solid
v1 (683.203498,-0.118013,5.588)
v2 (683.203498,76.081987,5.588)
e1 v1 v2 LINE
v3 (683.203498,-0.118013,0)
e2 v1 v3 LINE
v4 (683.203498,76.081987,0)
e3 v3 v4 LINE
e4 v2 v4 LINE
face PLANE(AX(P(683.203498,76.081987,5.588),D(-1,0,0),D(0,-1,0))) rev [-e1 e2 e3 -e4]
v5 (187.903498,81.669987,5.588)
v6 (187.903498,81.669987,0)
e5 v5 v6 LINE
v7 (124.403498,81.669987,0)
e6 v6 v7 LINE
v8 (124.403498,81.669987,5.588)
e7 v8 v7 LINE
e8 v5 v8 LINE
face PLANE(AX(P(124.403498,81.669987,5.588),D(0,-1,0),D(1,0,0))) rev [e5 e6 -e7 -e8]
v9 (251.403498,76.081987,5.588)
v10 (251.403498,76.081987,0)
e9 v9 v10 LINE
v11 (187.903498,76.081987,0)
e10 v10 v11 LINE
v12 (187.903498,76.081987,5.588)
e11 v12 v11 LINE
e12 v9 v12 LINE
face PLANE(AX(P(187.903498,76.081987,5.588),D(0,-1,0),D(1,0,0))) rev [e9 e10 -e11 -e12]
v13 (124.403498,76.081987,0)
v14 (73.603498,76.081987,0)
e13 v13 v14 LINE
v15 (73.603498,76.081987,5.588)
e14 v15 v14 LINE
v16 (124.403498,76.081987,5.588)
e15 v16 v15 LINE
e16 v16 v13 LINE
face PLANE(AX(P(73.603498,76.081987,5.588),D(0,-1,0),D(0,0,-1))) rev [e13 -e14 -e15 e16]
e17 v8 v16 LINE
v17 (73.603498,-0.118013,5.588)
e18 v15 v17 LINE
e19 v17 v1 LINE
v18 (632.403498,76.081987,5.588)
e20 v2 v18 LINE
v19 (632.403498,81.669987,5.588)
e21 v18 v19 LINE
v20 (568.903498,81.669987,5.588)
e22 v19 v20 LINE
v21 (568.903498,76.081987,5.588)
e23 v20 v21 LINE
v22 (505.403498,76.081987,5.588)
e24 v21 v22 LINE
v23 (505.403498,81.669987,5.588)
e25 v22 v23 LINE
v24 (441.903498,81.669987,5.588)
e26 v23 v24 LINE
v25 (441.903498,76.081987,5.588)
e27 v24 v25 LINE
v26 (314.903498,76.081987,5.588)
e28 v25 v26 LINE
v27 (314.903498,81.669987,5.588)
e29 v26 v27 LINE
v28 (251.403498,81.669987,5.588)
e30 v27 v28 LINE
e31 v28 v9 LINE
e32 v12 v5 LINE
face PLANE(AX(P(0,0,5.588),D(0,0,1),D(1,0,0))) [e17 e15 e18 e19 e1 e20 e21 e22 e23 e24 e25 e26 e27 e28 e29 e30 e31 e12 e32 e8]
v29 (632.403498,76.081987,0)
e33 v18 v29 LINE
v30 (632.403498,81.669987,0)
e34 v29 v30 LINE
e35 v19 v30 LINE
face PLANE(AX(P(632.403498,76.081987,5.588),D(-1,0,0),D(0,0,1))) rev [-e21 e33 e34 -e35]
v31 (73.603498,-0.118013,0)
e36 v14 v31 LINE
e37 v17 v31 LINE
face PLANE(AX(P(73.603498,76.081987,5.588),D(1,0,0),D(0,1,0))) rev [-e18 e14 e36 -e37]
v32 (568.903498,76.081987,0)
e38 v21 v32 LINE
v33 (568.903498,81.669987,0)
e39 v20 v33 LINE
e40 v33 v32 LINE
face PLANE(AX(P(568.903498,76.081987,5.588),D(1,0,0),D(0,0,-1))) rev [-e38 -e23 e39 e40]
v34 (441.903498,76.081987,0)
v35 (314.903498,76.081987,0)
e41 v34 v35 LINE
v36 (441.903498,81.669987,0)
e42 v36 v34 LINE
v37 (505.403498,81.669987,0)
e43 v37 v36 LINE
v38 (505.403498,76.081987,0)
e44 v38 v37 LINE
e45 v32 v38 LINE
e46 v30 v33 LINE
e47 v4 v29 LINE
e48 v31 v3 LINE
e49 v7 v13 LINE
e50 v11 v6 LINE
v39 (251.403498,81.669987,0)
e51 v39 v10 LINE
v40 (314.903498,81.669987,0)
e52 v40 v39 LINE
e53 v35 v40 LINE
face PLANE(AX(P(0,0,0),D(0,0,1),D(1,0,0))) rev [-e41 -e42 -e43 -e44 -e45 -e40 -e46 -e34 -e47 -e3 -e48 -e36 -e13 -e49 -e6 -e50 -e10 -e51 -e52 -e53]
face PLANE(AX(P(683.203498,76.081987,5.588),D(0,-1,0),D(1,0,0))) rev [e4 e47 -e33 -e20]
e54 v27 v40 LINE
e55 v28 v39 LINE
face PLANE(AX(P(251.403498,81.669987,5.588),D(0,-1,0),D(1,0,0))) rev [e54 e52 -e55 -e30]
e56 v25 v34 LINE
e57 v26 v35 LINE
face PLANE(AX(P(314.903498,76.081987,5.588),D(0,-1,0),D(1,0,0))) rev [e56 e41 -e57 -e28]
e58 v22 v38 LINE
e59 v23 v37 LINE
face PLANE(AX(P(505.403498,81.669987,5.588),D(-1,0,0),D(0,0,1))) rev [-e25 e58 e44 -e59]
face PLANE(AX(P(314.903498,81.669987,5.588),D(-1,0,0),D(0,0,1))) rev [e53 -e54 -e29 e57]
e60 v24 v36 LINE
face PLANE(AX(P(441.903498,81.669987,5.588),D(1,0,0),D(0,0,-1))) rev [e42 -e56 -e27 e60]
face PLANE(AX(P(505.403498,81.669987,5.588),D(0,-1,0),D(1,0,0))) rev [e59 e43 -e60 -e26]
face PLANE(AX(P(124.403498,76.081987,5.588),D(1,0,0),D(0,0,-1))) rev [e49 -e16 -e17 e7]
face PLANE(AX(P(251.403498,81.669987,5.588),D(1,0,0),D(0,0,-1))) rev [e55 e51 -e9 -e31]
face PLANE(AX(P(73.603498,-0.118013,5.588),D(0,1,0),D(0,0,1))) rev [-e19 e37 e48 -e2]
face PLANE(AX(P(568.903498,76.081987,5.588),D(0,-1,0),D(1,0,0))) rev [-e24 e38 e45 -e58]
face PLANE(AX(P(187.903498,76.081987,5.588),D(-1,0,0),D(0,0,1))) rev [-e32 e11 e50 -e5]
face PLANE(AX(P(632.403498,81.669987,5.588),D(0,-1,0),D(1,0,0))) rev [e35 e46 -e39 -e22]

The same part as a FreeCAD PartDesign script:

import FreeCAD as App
import Part
import Sketcher
Q = App.Units.Quantity

doc = App.newDocument("Part")
body = doc.addObject("PartDesign::Body", "Body")

sketch1 = body.newObject("Sketcher::SketchObject", "Sketch")
sketch1.AttachmentSupport = (doc.getObject("XY_Plane"), [""])
sketch1.MapMode = "FlatFace"
sketch1.addGeometry(Part.LineSegment(App.Vector(124, 76, 0), App.Vector(74, 76, 0)), False)
sketch1.addGeometry(Part.LineSegment(App.Vector(74, 76, 0), App.Vector(74, 0, 0)), False)
sketch1.addGeometry(Part.LineSegment(App.Vector(74, 0, 0), App.Vector(683, 0, 0)), False)
sketch1.addGeometry(Part.LineSegment(App.Vector(683, 0, 0), App.Vector(683, 76, 0)), False)
sketch1.addGeometry(Part.LineSegment(App.Vector(683, 76, 0), App.Vector(632, 76, 0)), False)
sketch1.addGeometry(Part.LineSegment(App.Vector(632, 76, 0), App.Vector(632, 82, 0)), False)
sketch1.addGeometry(Part.LineSegment(App.Vector(632, 82, 0), App.Vector(569, 82, 0)), False)
sketch1.addGeometry(Part.LineSegment(App.Vector(569, 82, 0), App.Vector(569, 76, 0)), False)
sketch1.addGeometry(Part.LineSegment(App.Vector(569, 76, 0), App.Vector(505, 76, 0)), False)
sketch1.addGeometry(Part.LineSegment(App.Vector(505, 76, 0), App.Vector(505, 82, 0)), False)
sketch1.addGeometry(Part.LineSegment(App.Vector(505, 82, 0), App.Vector(442, 82, 0)), False)
sketch1.addGeometry(Part.LineSegment(App.Vector(442, 82, 0), App.Vector(442, 76, 0)), False)
sketch1.addGeometry(Part.LineSegment(App.Vector(442, 76, 0), App.Vector(315, 76, 0)), False)
sketch1.addGeometry(Part.LineSegment(App.Vector(315, 76, 0), App.Vector(315, 82, 0)), False)
sketch1.addGeometry(Part.LineSegment(App.Vector(315, 82, 0), App.Vector(251, 82, 0)), False)
sketch1.addGeometry(Part.LineSegment(App.Vector(251, 82, 0), App.Vector(251, 76, 0)), False)
sketch1.addGeometry(Part.LineSegment(App.Vector(251, 76, 0), App.Vector(188, 76, 0)), False)
sketch1.addGeometry(Part.LineSegment(App.Vector(188, 76, 0), App.Vector(188, 82, 0)), False)
sketch1.addGeometry(Part.LineSegment(App.Vector(188, 82, 0), App.Vector(124, 82, 0)), False)
sketch1.addGeometry(Part.LineSegment(App.Vector(124, 82, 0), App.Vector(124, 76, 0)), False)
sketch1.addConstraint(Sketcher.Constraint("Coincident", 0, 2, 1, 1))
sketch1.addConstraint(Sketcher.Constraint("Coincident", 1, 2, 2, 1))
sketch1.addConstraint(Sketcher.Constraint("Coincident", 2, 2, 3, 1))
sketch1.addConstraint(Sketcher.Constraint("Coincident", 3, 2, 4, 1))
sketch1.addConstraint(Sketcher.Constraint("Coincident", 4, 2, 5, 1))
sketch1.addConstraint(Sketcher.Constraint("Coincident", 5, 2, 6, 1))
sketch1.addConstraint(Sketcher.Constraint("Coincident", 6, 2, 7, 1))
sketch1.addConstraint(Sketcher.Constraint("Coincident", 7, 2, 8, 1))
sketch1.addConstraint(Sketcher.Constraint("Coincident", 8, 2, 9, 1))
sketch1.addConstraint(Sketcher.Constraint("Coincident", 9, 2, 10, 1))
sketch1.addConstraint(Sketcher.Constraint("Coincident", 10, 2, 11, 1))
sketch1.addConstraint(Sketcher.Constraint("Coincident", 11, 2, 12, 1))
sketch1.addConstraint(Sketcher.Constraint("Coincident", 12, 2, 13, 1))
sketch1.addConstraint(Sketcher.Constraint("Coincident", 13, 2, 14, 1))
sketch1.addConstraint(Sketcher.Constraint("Coincident", 14, 2, 15, 1))
sketch1.addConstraint(Sketcher.Constraint("Coincident", 15, 2, 16, 1))
sketch1.addConstraint(Sketcher.Constraint("Coincident", 16, 2, 17, 1))
sketch1.addConstraint(Sketcher.Constraint("Coincident", 17, 2, 18, 1))
sketch1.addConstraint(Sketcher.Constraint("Coincident", 18, 2, 19, 1))
sketch1.addConstraint(Sketcher.Constraint("Coincident", 19, 2, 0, 1))
sketch1.addConstraint(Sketcher.Constraint("Horizontal", 0))
sketch1.addConstraint(Sketcher.Constraint("Vertical", 1))
sketch1.addConstraint(Sketcher.Constraint("Horizontal", 2))
sketch1.addConstraint(Sketcher.Constraint("Vertical", 3))
sketch1.addConstraint(Sketcher.Constraint("Horizontal", 4))
sketch1.addConstraint(Sketcher.Constraint("Vertical", 5))
sketch1.addConstraint(Sketcher.Constraint("Horizontal", 6))
sketch1.addConstraint(Sketcher.Constraint("Vertical", 7))
sketch1.addConstraint(Sketcher.Constraint("Horizontal", 8))
sketch1.addConstraint(Sketcher.Constraint("Vertical", 9))
sketch1.addConstraint(Sketcher.Constraint("Horizontal", 10))
sketch1.addConstraint(Sketcher.Constraint("Vertical", 11))
sketch1.addConstraint(Sketcher.Constraint("Horizontal", 12))
sketch1.addConstraint(Sketcher.Constraint("Vertical", 13))
sketch1.addConstraint(Sketcher.Constraint("Horizontal", 14))
sketch1.addConstraint(Sketcher.Constraint("Vertical", 15))
sketch1.addConstraint(Sketcher.Constraint("Horizontal", 16))
sketch1.addConstraint(Sketcher.Constraint("Vertical", 17))
sketch1.addConstraint(Sketcher.Constraint("Horizontal", 18))
sketch1.addConstraint(Sketcher.Constraint("Vertical", 19))
sketch1.addConstraint(Sketcher.Constraint("Horizontal", 0, 2, 3, 2))
sketch1.addConstraint(Sketcher.Constraint("Horizontal", 4, 2, 7, 2))
sketch1.addConstraint(Sketcher.Constraint("Horizontal", 6, 2, 9, 2))
sketch1.addConstraint(Sketcher.Constraint("Horizontal", 8, 2, 11, 2))
sketch1.addConstraint(Sketcher.Constraint("Horizontal", 10, 2, 13, 2))
sketch1.addConstraint(Sketcher.Constraint("Horizontal", 12, 2, 15, 2))
sketch1.addConstraint(Sketcher.Constraint("Horizontal", 14, 2, 17, 2))
sketch1.addConstraint(Sketcher.Constraint("Equal", 0, 4))
sketch1.addConstraint(Sketcher.Constraint("Equal", 6, 8))
sketch1.addConstraint(Sketcher.Constraint("Equal", 8, 10))
sketch1.addConstraint(Sketcher.Constraint("Equal", 10, 14))
sketch1.addConstraint(Sketcher.Constraint("Equal", 14, 16))
sketch1.addConstraint(Sketcher.Constraint("Equal", 16, 18))
sketch1.addConstraint(Sketcher.Constraint("DistanceX", 0, 2, 0, 1, Q("2 in")))
sketch1.addConstraint(Sketcher.Constraint("DistanceX", 2, 1, 2, 2, Q("24 in")))
sketch1.addConstraint(Sketcher.Constraint("DistanceX", 12, 2, 12, 1, Q("5 in")))
sketch1.addConstraint(Sketcher.Constraint("DistanceY", 1, 2, 1, 1, Q("3 in")))
sketch1.addConstraint(Sketcher.Constraint("DistanceY", 5, 1, 5, 2, Q("0.22 in")))
sketch1.addConstraint(Sketcher.Constraint("DistanceX", -1, 1, 0, 2, Q("73.603498 mm")))
sketch1.addConstraint(Sketcher.Constraint("DistanceY", -1, 1, 0, 2, Q("76.081987 mm")))
pad1 = body.newObject("PartDesign::Pad", "Pad")
pad1.Profile = sketch1
pad1.Length = Q("0.22 in")

doc.recompute()
